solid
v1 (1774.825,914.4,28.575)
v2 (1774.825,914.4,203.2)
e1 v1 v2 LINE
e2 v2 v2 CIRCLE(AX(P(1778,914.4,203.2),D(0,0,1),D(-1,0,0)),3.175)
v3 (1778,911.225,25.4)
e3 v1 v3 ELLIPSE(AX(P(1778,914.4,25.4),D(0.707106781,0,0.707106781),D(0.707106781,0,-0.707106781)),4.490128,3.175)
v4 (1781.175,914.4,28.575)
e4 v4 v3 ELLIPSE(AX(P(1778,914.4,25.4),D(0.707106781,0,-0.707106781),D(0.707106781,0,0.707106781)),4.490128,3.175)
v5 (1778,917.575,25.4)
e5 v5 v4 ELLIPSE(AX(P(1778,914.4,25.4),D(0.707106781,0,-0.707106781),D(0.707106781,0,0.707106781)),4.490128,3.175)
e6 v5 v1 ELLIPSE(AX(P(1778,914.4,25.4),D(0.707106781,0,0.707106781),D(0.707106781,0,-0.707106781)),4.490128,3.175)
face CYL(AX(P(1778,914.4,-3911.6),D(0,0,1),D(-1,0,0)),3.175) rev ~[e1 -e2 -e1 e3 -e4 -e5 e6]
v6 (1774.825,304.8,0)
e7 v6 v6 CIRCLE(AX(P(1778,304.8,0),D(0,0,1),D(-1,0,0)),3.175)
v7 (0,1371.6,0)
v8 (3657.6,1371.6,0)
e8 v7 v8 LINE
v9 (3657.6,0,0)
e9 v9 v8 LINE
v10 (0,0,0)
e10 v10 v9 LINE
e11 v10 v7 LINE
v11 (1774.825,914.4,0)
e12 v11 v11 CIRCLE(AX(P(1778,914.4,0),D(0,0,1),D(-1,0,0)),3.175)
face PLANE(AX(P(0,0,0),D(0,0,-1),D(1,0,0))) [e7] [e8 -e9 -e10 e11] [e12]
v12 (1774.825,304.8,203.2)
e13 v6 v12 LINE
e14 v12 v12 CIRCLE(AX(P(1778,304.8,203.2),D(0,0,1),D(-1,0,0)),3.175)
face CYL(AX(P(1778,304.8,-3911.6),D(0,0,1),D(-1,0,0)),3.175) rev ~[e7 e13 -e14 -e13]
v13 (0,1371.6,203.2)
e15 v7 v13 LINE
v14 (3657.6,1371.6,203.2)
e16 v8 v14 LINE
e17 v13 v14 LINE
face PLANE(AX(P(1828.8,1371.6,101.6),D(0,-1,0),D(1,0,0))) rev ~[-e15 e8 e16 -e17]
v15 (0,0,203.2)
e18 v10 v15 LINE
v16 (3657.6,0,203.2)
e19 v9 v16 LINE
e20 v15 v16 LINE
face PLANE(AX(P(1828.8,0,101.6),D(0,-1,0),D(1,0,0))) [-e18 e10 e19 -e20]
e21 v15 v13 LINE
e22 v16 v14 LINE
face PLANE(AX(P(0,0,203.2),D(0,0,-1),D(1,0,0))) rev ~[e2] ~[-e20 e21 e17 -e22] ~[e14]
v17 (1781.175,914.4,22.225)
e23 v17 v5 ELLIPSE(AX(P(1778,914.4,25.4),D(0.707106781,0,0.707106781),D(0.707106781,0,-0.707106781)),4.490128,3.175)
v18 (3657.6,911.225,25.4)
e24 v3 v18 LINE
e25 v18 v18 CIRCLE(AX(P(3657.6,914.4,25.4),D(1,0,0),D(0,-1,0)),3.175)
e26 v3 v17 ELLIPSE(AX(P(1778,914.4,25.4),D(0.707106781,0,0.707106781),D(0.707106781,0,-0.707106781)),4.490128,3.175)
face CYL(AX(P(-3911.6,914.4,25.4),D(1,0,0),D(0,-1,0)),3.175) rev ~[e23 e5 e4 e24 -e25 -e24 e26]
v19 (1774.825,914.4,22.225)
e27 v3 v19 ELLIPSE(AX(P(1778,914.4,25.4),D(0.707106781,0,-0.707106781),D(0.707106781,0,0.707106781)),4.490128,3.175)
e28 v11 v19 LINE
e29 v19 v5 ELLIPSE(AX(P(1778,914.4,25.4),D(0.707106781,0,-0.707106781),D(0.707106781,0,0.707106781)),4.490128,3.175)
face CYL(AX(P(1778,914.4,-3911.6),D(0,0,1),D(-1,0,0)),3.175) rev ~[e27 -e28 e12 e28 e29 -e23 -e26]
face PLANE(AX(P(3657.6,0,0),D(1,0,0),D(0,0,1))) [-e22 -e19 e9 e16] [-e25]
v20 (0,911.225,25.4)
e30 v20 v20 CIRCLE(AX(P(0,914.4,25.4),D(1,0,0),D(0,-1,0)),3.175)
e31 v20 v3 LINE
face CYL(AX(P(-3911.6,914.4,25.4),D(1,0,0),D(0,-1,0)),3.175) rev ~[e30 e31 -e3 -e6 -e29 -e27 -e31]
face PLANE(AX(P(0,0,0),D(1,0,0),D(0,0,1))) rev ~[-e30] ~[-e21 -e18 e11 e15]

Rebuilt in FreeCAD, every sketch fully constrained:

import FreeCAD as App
import Part
import Sketcher

V = App.Vector
Q = App.Units.Quantity


def add_polygon(sketch, points):
    """Adds a closed chain of lines whose ends are joined by coincident constraints."""
    first, n = sketch.GeometryCount, len(points)
    for a, b in zip(points, points[1:] + points[:1]):
        sketch.addGeometry(Part.LineSegment(App.Vector(*a, 0), App.Vector(*b, 0)), False)
    for i in range(n):
        sketch.addConstraint(Sketcher.Constraint("Coincident", first + i, 2, first + (i + 1) % n, 1))

doc = App.newDocument("Part")
params = doc.addObject("Spreadsheet::Sheet", "Params")
for row, (alias, value) in enumerate([
    ("sketch1_width", "144 in"),
    ("sketch1_height", "8 in"),
    ("pad1_length", "54 in"),
    ("sketch2_diameter", "0.25 in"),
    ("hole_diameter", "0.25 in"),
    ("sketch3_diameter", "0.25 in"),
    ("hole2_diameter", "0.25 in"),
    ("sketch4_diameter", "0.25 in"),
    ("hole3_diameter", "0.25 in"),
], start=1):
    params.set(f"A{row}", alias)
    params.set(f"B{row}", "=" + value)
    params.setAlias(f"B{row}", alias)

body = doc.addObject("PartDesign::Body", "Body")

sketch1 = body.newObject("Sketcher::SketchObject", "Sketch")
sketch1.AttachmentSupport = (doc.getObject("XZ_Plane"), [""])
sketch1.MapMode = "FlatFace"
add_polygon(sketch1, [(0, 203.2), (0, 0), (3657.6, 0), (3657.6, 203.2)])
sketch1.addConstraint(Sketcher.Constraint("Vertical", 0))
sketch1.addConstraint(Sketcher.Constraint("Horizontal", 1))
sketch1.addConstraint(Sketcher.Constraint("Vertical", 2))
sketch1.addConstraint(Sketcher.Constraint("Horizontal", 3))
sketch1.addConstraint(Sketcher.Constraint("Coincident", 0, 2, -1, 1))
sketch1.addConstraint(Sketcher.Constraint("DistanceX", 1, 1, 1, 2, Q("144 in")))
sketch1.addConstraint(Sketcher.Constraint("DistanceY", 0, 2, 0, 1, Q("8 in")))
sketch1.setExpression("Constraints[9]", "Params.sketch1_width")
sketch1.setExpression("Constraints[10]", "Params.sketch1_height")
pad1 = body.newObject("PartDesign::Pad", "Pad")
pad1.Profile = sketch1
pad1.setExpression("Length", "Params.pad1_length")
pad1.Reversed = True

sketch2 = body.newObject("Sketcher::SketchObject", "Sketch001")
sketch2.AttachmentSupport = (doc.getObject("YZ_Plane"), [""])
sketch2.MapMode = "FlatFace"
sketch2.addGeometry(Part.Circle(V(914.4, 25.4, 0), V(0, 0, 1), 3.175), False)
sketch2.addConstraint(Sketcher.Constraint("Diameter", 0, Q("0.25 in")))
sketch2.addConstraint(Sketcher.Constraint("DistanceX", -1, 1, 0, 3, Q("36 in")))
sketch2.addConstraint(Sketcher.Constraint("DistanceY", -1, 1, 0, 3, Q("1 in")))
sketch2.setExpression("Constraints[0]", "Params.sketch2_diameter")
doc.recompute()
hole = body.newObject("PartDesign::Hole", "Hole")
hole.Profile = sketch2
hole.ThreadType = "None"
hole.setExpression("Diameter", "Params.hole_diameter")
hole.DepthType = "ThroughAll"
hole.Reversed = True

sketch3 = body.newObject("Sketcher::SketchObject", "Sketch002")
sketch3.AttachmentSupport = (doc.getObject("XY_Plane"), [""])
sketch3.MapMode = "FlatFace"
sketch3.addGeometry(Part.Circle(V(1778, 304.8, 0), V(0, 0, 1), 3.175), False)
sketch3.addConstraint(Sketcher.Constraint("Diameter", 0, Q("0.25 in")))
sketch3.addConstraint(Sketcher.Constraint("DistanceX", -1, 1, 0, 3, Q("70 in")))
sketch3.addConstraint(Sketcher.Constraint("DistanceY", -1, 1, 0, 3, Q("12 in")))
sketch3.setExpression("Constraints[0]", "Params.sketch3_diameter")
doc.recompute()
hole2 = body.newObject("PartDesign::Hole", "Hole001")
hole2.Profile = sketch3
hole2.ThreadType = "None"
hole2.setExpression("Diameter", "Params.hole2_diameter")
hole2.DepthType = "ThroughAll"
hole2.Reversed = True

sketch4 = body.newObject("Sketcher::SketchObject", "Sketch003")
sketch4.AttachmentSupport = (doc.getObject("XY_Plane"), [""])
sketch4.MapMode = "FlatFace"
sketch4.addGeometry(Part.Circle(V(1778, 914.4, 0), V(0, 0, 1), 3.175), False)
sketch4.addConstraint(Sketcher.Constraint("Diameter", 0, Q("0.25 in")))
sketch4.addConstraint(Sketcher.Constraint("DistanceX", -1, 1, 0, 3, Q("70 in")))
sketch4.addConstraint(Sketcher.Constraint("DistanceY", -1, 1, 0, 3, Q("36 in")))
sketch4.setExpression("Constraints[0]", "Params.sketch4_diameter")
doc.recompute()
hole3 = body.newObject("PartDesign::Hole", "Hole002")
hole3.Profile = sketch4
hole3.ThreadType = "None"
hole3.setExpression("Diameter", "Params.hole3_diameter")
hole3.DepthType = "ThroughAll"
hole3.Reversed = True

doc.recompute()
